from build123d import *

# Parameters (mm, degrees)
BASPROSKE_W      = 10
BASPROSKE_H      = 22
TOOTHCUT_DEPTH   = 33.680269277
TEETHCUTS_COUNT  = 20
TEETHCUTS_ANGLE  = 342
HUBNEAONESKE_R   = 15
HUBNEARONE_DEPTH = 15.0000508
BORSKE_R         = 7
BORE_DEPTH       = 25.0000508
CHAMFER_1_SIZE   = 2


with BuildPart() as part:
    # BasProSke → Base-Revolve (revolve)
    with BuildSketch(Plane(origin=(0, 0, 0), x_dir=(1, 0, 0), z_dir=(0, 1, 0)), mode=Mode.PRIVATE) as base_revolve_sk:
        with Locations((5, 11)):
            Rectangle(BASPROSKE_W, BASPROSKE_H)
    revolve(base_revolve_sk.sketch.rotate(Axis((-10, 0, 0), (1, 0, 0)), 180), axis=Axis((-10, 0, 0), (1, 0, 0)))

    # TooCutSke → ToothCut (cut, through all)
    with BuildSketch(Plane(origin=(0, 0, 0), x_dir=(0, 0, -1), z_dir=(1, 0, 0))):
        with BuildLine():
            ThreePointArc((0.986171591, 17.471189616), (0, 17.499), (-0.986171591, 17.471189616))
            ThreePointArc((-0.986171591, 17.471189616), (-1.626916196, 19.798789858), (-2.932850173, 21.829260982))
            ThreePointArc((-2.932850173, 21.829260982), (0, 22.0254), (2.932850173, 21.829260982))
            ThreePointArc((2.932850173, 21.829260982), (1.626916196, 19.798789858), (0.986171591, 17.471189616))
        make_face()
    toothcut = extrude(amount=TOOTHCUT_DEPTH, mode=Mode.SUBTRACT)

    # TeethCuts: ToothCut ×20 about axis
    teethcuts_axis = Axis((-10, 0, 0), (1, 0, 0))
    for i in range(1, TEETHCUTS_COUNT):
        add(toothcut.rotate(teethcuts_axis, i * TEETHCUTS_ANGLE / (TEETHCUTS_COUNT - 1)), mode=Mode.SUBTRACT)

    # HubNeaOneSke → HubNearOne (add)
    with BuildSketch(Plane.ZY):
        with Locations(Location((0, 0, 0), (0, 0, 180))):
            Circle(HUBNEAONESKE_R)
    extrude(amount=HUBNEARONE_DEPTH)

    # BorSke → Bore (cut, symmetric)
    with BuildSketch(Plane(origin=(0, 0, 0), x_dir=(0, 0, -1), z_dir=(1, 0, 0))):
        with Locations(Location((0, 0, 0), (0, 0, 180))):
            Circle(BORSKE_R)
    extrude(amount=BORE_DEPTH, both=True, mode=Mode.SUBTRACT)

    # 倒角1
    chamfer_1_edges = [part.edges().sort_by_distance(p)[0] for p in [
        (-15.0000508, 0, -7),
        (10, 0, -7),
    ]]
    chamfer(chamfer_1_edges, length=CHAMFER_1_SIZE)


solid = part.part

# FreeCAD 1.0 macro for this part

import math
import FreeCAD as App
import Part
import Sketcher

V = App.Vector


def edges_at(feature, points):
    """Names of the edges that pass closest to the given points."""
    edges = feature.Shape.Edges
    near = lambda p: min(range(len(edges)), key=lambda i: edges[i].distToShape(Part.Vertex(*p))[0])
    return sorted({f"Edge{near(p) + 1}" for p in points})


def add_polygon(sketch, points):
    """Adds a closed chain of lines whose ends are joined by coincident constraints."""
    first, n = sketch.GeometryCount, len(points)
    for a, b in zip(points, points[1:] + points[:1]):
        sketch.addGeometry(Part.LineSegment(App.Vector(*a, 0), App.Vector(*b, 0)), False)
    for i in range(n):
        sketch.addConstraint(Sketcher.Constraint("Coincident", first + i, 2, first + (i + 1) % n, 1))

doc = App.newDocument("Part")
body = doc.addObject("PartDesign::Body", "Body")

# Sketch on XZ plane
sketch1 = body.newObject("Sketcher::SketchObject", "Sketch")
sketch1.AttachmentSupport = (doc.getObject("XZ_Plane"), [""])
sketch1.MapMode = "FlatFace"
add_polygon(sketch1, [(0, -22), (0, 0), (10, 0), (10, -22)])  # lines 0-3
sketch1.addConstraint([
    Sketcher.Constraint("Vertical", 0),
    Sketcher.Constraint("Horizontal", 1),
    Sketcher.Constraint("Vertical", 2),
    Sketcher.Constraint("Horizontal", 3),
    Sketcher.Constraint("Coincident", 0, 2, -1, 1),
    Sketcher.Constraint("DistanceX", 1, 1, 1, 2, 10.0),
    Sketcher.Constraint("DistanceY", 0, 1, 0, 2, 22.0),
])
revolution = body.newObject("PartDesign::Revolution", "Revolution")
revolution.Profile = sketch1
revolution.ReferenceAxis = (sketch1, ["H_Axis"])
revolution.Angle = 360

# Sketch on YZ plane
sketch2 = body.newObject("Sketcher::SketchObject", "Sketch001")
sketch2.AttachmentSupport = (doc.getObject("YZ_Plane"), [""])
sketch2.MapMode = "FlatFace"
sketch2.addGeometry([
    Part.ArcOfCircle(Part.Circle(V(0, 0, 0), V(0, 0, 1), 17.5), math.radians(-3.23), math.radians(3.23)),
    Part.ArcOfCircle(Part.Circle(V(16.5, -8.9, 0), V(0, 0, 1), 8), math.radians(49), math.radians(83)),
    Part.ArcOfCircle(Part.Circle(V(0, 0, 0), V(0, 0, 1), 22), math.radians(-7.65), math.radians(7.65)),
    Part.ArcOfCircle(Part.Circle(V(16.5, 8.9, 0), V(0, 0, 1), 8), math.radians(-83), math.radians(-49)),
], False)
sketch2.addConstraint([
    Sketcher.Constraint("Coincident", 0, 1, 1, 2),
    Sketcher.Constraint("Coincident", 1, 1, 2, 1),
    Sketcher.Constraint("Coincident", 2, 2, 3, 2),
    Sketcher.Constraint("Coincident", 3, 1, 0, 2),
    Sketcher.Constraint("Coincident", 0, 3, -1, 1),
    Sketcher.Constraint("Coincident", 2, 3, -1, 1),
    Sketcher.Constraint("Equal", 1, 3),
    Sketcher.Constraint("Symmetric", 1, 3, 3, 3, -1),
    Sketcher.Constraint("Radius", 1, 8.0),
    Sketcher.Constraint("Radius", 0, 17.499),
    Sketcher.Constraint("Radius", 2, 22.0254),
    Sketcher.Constraint("DistanceY", 1, 1, 2, 2, 5.8657),
    Sketcher.Constraint("DistanceX", -1, 1, 1, 3, 16.536031),
])
pocket1 = body.newObject("PartDesign::Pocket", "Pocket")
pocket1.Profile = sketch2
pocket1.Type = "ThroughAll"
pocket1.Reversed = True
doc.recompute()

polarpattern = body.newObject("PartDesign::PolarPattern", "PolarPattern")
polarpattern.Originals = [pocket1]
polarpattern.Axis = (doc.getObject("X_Axis"), [""])
polarpattern.Angle = 360
polarpattern.Occurrences = 20
body.Tip = polarpattern

# Sketch on YZ plane
sketch3 = body.newObject("Sketcher::SketchObject", "Sketch002")
sketch3.AttachmentSupport = (doc.getObject("YZ_Plane"), [""])
sketch3.MapMode = "FlatFace"
sketch3.addGeometry(Part.Circle(V(0, 0, 0), V(0, 0, 1), 15), False)
sketch3.addConstraint([
    Sketcher.Constraint("Coincident", 0, 3, -1, 1),
    Sketcher.Constraint("Diameter", 0, 30.0),
])
pad1 = body.newObject("PartDesign::Pad", "Pad")
pad1.Profile = sketch3
pad1.Length = 15.000051
pad1.Reversed = True

# Sketch on YZ plane
sketch4 = body.newObject("Sketcher::SketchObject", "Sketch003")
sketch4.AttachmentSupport = (doc.getObject("YZ_Plane"), [""])
sketch4.MapMode = "FlatFace"
sketch4.addGeometry(Part.Circle(V(0, 0, 0), V(0, 0, 1), 7), False)
sketch4.addConstraint([
    Sketcher.Constraint("Coincident", 0, 3, -1, 1),
    Sketcher.Constraint("Diameter", 0, 14.0),
])
pocket2 = body.newObject("PartDesign::Pocket", "Pocket001")
pocket2.Profile = sketch4
pocket2.Length = 50.000102
pocket2.Midplane = True
doc.recompute()

chamfer = body.newObject("PartDesign::Chamfer", "Chamfer")
chamfer.Base = (pocket2, edges_at(pocket2, [(-15, 0, -7), (10, 0, -7)]))
chamfer.Size = 2

doc.recompute()
